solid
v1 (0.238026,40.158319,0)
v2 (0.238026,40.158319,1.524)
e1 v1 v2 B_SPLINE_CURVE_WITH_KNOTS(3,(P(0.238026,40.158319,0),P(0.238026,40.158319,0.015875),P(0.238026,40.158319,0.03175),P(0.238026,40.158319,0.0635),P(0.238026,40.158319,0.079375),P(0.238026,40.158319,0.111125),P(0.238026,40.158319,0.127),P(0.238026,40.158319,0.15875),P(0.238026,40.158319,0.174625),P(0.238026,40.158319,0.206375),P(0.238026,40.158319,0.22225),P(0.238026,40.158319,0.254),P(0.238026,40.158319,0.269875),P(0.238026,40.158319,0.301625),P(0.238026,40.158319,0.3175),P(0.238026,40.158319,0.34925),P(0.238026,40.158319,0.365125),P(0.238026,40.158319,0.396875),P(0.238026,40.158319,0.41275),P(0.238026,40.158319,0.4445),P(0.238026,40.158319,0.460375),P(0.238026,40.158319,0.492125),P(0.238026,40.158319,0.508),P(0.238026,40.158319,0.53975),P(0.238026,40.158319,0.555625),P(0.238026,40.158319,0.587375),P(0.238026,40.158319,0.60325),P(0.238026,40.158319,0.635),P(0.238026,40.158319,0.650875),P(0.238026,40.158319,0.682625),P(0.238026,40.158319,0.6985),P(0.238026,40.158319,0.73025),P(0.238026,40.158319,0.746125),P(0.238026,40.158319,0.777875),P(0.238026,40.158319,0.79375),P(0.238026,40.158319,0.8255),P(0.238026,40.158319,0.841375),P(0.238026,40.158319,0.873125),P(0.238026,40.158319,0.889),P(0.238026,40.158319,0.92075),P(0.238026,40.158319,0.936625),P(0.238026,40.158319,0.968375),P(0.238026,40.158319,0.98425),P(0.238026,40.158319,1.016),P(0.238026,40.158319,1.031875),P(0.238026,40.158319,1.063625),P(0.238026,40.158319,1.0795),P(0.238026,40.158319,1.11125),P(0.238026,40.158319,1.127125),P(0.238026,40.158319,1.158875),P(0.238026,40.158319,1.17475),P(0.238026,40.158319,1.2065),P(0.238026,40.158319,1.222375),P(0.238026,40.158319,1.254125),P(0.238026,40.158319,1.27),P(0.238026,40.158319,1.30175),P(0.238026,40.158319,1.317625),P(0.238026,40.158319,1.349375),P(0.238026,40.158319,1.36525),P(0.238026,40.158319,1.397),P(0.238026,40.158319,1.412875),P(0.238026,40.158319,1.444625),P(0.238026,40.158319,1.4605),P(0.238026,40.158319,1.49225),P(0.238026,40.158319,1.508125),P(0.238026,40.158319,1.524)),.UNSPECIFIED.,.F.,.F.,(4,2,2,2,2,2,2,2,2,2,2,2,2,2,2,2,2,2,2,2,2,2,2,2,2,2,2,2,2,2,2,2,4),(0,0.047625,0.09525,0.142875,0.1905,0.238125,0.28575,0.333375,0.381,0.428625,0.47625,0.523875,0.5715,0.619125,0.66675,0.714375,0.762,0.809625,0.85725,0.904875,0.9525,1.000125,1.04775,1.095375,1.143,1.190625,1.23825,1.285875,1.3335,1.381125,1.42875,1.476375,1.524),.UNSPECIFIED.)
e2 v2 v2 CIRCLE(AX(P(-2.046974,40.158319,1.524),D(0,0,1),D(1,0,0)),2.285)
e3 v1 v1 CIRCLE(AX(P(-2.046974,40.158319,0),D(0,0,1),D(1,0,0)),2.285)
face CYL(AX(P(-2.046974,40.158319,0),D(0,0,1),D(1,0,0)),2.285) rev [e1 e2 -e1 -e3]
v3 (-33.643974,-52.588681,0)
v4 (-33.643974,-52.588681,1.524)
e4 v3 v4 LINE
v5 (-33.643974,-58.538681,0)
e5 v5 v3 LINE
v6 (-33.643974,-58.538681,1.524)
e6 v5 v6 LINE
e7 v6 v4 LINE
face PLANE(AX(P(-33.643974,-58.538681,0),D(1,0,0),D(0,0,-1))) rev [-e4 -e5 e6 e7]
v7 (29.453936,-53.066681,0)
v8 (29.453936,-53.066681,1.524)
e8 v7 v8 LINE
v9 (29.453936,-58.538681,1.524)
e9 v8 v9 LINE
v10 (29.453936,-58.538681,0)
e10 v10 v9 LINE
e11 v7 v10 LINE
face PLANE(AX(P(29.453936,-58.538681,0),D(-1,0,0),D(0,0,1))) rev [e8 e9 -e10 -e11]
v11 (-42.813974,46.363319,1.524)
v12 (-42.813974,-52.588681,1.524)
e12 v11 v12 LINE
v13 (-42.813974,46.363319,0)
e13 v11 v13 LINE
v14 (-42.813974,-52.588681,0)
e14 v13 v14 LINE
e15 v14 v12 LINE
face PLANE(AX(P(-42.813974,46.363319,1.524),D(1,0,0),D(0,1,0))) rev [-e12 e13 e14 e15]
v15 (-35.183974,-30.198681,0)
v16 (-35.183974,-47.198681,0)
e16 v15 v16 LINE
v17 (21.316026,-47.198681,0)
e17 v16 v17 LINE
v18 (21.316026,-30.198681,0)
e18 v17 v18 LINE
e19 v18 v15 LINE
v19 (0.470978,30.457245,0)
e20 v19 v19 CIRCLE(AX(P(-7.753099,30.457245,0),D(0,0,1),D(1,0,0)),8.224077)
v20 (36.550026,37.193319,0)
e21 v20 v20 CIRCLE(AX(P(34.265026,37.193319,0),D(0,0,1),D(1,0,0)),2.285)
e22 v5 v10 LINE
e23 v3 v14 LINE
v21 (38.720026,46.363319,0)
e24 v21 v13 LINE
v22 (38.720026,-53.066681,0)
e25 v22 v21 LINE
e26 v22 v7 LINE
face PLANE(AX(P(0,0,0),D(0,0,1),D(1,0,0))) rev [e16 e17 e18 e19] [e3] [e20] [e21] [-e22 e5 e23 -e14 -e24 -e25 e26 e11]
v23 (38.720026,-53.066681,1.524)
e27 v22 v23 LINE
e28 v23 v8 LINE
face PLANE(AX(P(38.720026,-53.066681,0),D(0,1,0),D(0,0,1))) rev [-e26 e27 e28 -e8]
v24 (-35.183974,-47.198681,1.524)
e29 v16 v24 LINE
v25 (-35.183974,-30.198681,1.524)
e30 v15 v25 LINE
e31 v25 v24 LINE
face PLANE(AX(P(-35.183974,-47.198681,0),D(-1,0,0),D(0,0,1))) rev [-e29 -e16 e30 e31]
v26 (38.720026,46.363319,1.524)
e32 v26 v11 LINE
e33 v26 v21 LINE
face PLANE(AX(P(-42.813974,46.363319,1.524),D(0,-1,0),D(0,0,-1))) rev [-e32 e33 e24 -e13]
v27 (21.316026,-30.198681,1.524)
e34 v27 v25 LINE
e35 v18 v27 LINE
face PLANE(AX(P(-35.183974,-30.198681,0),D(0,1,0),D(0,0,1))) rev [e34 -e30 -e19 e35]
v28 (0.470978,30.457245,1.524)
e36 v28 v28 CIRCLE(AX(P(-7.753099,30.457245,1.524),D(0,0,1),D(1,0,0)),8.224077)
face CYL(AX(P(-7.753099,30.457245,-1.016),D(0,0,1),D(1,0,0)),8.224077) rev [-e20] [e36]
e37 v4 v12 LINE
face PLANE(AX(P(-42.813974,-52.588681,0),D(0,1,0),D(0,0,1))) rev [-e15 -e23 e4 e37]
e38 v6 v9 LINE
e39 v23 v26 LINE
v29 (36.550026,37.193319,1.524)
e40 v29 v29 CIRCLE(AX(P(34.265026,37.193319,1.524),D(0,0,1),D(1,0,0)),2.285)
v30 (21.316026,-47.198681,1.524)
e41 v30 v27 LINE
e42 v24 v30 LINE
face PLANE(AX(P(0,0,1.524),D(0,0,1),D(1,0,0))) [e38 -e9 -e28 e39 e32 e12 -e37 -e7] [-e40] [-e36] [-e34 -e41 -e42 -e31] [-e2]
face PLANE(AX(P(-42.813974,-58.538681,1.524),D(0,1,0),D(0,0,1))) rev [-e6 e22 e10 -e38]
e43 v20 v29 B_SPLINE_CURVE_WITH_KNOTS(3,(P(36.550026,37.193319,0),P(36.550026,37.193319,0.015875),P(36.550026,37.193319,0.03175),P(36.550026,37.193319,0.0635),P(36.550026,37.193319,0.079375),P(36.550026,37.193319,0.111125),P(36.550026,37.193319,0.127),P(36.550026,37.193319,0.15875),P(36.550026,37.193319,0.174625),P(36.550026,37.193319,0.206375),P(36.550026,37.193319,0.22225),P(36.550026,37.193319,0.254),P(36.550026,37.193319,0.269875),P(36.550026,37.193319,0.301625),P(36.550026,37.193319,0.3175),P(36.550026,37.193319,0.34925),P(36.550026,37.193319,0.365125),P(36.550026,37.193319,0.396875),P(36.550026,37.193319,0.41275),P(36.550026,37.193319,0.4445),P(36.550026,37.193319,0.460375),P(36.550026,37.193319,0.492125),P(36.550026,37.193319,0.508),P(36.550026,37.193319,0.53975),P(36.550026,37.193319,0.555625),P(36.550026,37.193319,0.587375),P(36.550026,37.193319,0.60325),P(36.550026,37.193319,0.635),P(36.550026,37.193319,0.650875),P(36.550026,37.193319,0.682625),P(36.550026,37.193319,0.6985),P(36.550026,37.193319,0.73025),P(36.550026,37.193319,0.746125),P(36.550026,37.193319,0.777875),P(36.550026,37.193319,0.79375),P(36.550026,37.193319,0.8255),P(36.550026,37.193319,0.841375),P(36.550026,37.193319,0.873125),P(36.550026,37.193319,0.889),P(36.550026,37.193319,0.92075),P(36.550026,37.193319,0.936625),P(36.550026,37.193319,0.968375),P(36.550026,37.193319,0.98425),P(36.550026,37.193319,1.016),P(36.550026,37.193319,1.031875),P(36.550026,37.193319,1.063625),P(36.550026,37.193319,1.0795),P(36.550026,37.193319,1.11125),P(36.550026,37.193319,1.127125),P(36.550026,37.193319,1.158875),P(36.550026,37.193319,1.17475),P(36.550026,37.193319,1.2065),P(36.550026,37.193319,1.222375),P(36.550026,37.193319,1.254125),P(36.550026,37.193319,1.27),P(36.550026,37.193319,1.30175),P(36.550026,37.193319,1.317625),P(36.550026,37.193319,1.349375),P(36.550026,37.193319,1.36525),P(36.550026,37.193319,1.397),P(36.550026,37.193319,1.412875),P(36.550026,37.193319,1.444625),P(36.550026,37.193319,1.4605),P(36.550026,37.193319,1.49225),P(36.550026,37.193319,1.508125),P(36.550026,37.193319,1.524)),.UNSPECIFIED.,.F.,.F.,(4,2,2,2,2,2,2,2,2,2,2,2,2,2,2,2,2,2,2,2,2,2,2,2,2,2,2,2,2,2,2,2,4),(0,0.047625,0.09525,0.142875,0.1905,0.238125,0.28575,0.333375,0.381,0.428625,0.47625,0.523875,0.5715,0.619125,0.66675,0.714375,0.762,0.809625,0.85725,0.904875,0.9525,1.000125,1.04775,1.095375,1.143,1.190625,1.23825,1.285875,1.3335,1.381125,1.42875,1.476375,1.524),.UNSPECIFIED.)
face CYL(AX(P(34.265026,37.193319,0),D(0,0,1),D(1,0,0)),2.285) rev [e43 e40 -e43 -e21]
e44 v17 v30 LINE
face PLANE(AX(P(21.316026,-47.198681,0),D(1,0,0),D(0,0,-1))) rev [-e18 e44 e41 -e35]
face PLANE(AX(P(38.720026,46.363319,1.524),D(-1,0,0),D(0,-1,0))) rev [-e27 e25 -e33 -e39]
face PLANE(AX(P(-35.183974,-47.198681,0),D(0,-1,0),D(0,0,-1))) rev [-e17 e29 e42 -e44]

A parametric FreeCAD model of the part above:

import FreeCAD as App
import Part
import Sketcher

V = App.Vector
Q = App.Units.Quantity


def add_polygon(sketch, points):
    """Adds a closed chain of lines whose ends are joined by coincident constraints."""
    first, n = sketch.GeometryCount, len(points)
    for a, b in zip(points, points[1:] + points[:1]):
        sketch.addGeometry(Part.LineSegment(App.Vector(*a, 0), App.Vector(*b, 0)), False)
    for i in range(n):
        sketch.addConstraint(Sketcher.Constraint("Coincident", first + i, 2, first + (i + 1) % n, 1))

doc = App.newDocument("Part")
body = doc.addObject("PartDesign::Body", "Body")

# Sketch on XY plane
sketch1 = body.newObject("Sketcher::SketchObject", "Sketch")
sketch1.AttachmentSupport = (doc.getObject("XY_Plane"), [""])
sketch1.MapMode = "FlatFace"
add_polygon(sketch1, [(-43, 46), (-43, -59), (39, -59), (39, 46)])  # lines 0-3
sketch1.addConstraint(Sketcher.Constraint("Vertical", 0))
sketch1.addConstraint(Sketcher.Constraint("Horizontal", 1))
sketch1.addConstraint(Sketcher.Constraint("Vertical", 2))
sketch1.addConstraint(Sketcher.Constraint("Horizontal", 3))
sketch1.addConstraint(Sketcher.Constraint("DistanceX", 1, 1, 1, 2, Q("3.21 in")))
sketch1.addConstraint(Sketcher.Constraint("DistanceY", 0, 2, 0, 1, Q("4.13 in")))
sketch1.addConstraint(Sketcher.Constraint("DistanceY", 0, 2, -1, 1, 58.538681))
sketch1.addConstraint(Sketcher.Constraint("DistanceX", 0, 2, -1, 1, 42.813974))
pad1 = body.newObject("PartDesign::Pad", "Pad")
pad1.Profile = sketch1
pad1.Length = Q("0.06 in")

# Sketch on XY plane
sketch2 = body.newObject("Sketcher::SketchObject", "Sketch001")
sketch2.AttachmentSupport = (doc.getObject("XY_Plane"), [""])
sketch2.MapMode = "FlatFace"
sketch2.AttachmentOffset = App.Placement(V(0, 0, 0.06 * 25.4), App.Rotation())
add_polygon(sketch2, [(-43, -53), (-43, -59), (-34, -59), (-34, -53)])  # lines 0-3
add_polygon(sketch2, [(29, -53), (29, -59), (39, -59), (39, -53)])  # lines 4-7
sketch2.addConstraint(Sketcher.Constraint("Vertical", 0))
sketch2.addConstraint(Sketcher.Constraint("Horizontal", 1))
sketch2.addConstraint(Sketcher.Constraint("Vertical", 2))
sketch2.addConstraint(Sketcher.Constraint("Horizontal", 3))
sketch2.addConstraint(Sketcher.Constraint("Vertical", 4))
sketch2.addConstraint(Sketcher.Constraint("Horizontal", 5))
sketch2.addConstraint(Sketcher.Constraint("Vertical", 6))
sketch2.addConstraint(Sketcher.Constraint("Horizontal", 7))
sketch2.addConstraint(Sketcher.Constraint("Horizontal", 1, 2, 4, 2))
sketch2.addConstraint(Sketcher.Constraint("DistanceX", 0, 2, 5, 2, Q("3.21 in")))
sketch2.addConstraint(Sketcher.Constraint("DistanceX", 1, 1, 1, 2, 9.17))
sketch2.addConstraint(Sketcher.Constraint("DistanceY", 0, 2, 0, 1, 5.95))
sketch2.addConstraint(Sketcher.Constraint("DistanceY", 4, 2, 4, 1, 5.472))
sketch2.addConstraint(Sketcher.Constraint("DistanceX", 5, 1, 5, 2, 9.26609))
sketch2.addConstraint(Sketcher.Constraint("DistanceY", 0, 2, -1, 1, 58.538681))
sketch2.addConstraint(Sketcher.Constraint("DistanceX", 0, 2, -1, 1, 42.813974))
pocket1 = body.newObject("PartDesign::Pocket", "Pocket")
pocket1.Profile = sketch2
pocket1.Length = Q("0.06 in")

# Sketch on XY plane
sketch3 = body.newObject("Sketcher::SketchObject", "Sketch002")
sketch3.AttachmentSupport = (doc.getObject("XY_Plane"), [""])
sketch3.MapMode = "FlatFace"
sketch3.AttachmentOffset = App.Placement(V(0, 0, 0.06 * 25.4), App.Rotation())
add_polygon(sketch3, [(-35, -30), (-35, -47), (21, -47), (21, -30)])  # lines 0-3
sketch3.addConstraint(Sketcher.Constraint("Vertical", 0))
sketch3.addConstraint(Sketcher.Constraint("Horizontal", 1))
sketch3.addConstraint(Sketcher.Constraint("Vertical", 2))
sketch3.addConstraint(Sketcher.Constraint("Horizontal", 3))
sketch3.addConstraint(Sketcher.Constraint("DistanceX", 1, 1, 1, 2, 56.5))
sketch3.addConstraint(Sketcher.Constraint("DistanceY", 0, 2, 0, 1, 17.0))
sketch3.addConstraint(Sketcher.Constraint("DistanceY", 0, 2, -1, 1, 47.198681))
sketch3.addConstraint(Sketcher.Constraint("DistanceX", 0, 2, -1, 1, 35.183974))
pocket2 = body.newObject("PartDesign::Pocket", "Pocket001")
pocket2.Profile = sketch3
pocket2.Length = Q("0.06 in")

# Sketch on XY plane
sketch4 = body.newObject("Sketcher::SketchObject", "Sketch003")
sketch4.AttachmentSupport = (doc.getObject("XY_Plane"), [""])
sketch4.MapMode = "FlatFace"
sketch4.AttachmentOffset = App.Placement(V(0, 0, 0.06 * 25.4), App.Rotation())
sketch4.addGeometry(Part.Circle(V(-2, 40.2, 0), V(0, 0, 1), 2.3), False)
sketch4.addGeometry(Part.Circle(V(34.3, 37.2, 0), V(0, 0, 1), 2.3), False)
sketch4.addConstraint(Sketcher.Constraint("Equal", 0, 1))
sketch4.addConstraint(Sketcher.Constraint("Diameter", 0, 4.57))
sketch4.addConstraint(Sketcher.Constraint("DistanceX", 0, 3, 1, 3, 36.312))
sketch4.addConstraint(Sketcher.Constraint("DistanceY", 1, 3, 0, 3, 2.965))
sketch4.addConstraint(Sketcher.Constraint("DistanceY", -1, 1, 0, 3, 40.158319))
sketch4.addConstraint(Sketcher.Constraint("DistanceX", 0, 3, -1, 1, 2.046974))
pocket3 = body.newObject("PartDesign::Pocket", "Pocket002")
pocket3.Profile = sketch4
pocket3.Length = Q("0.06 in")

# Sketch on XY plane
sketch5 = body.newObject("Sketcher::SketchObject", "Sketch004")
sketch5.AttachmentSupport = (doc.getObject("XY_Plane"), [""])
sketch5.MapMode = "FlatFace"
sketch5.AttachmentOffset = App.Placement(V(0, 0, 0.06 * 25.4), App.Rotation())
sketch5.addGeometry(Part.Circle(V(-8, 30, 0), V(0, 0, 1), 8), False)
sketch5.addConstraint(Sketcher.Constraint("Diameter", 0, 16.448154))
sketch5.addConstraint(Sketcher.Constraint("DistanceX", 0, 3, -1, 1, 7.753099))
sketch5.addConstraint(Sketcher.Constraint("DistanceY", -1, 1, 0, 3, 30.457245))
pocket4 = body.newObject("PartDesign::Pocket", "Pocket003")
pocket4.Profile = sketch5
pocket4.Length = Q("0.1 in")

doc.recompute()
